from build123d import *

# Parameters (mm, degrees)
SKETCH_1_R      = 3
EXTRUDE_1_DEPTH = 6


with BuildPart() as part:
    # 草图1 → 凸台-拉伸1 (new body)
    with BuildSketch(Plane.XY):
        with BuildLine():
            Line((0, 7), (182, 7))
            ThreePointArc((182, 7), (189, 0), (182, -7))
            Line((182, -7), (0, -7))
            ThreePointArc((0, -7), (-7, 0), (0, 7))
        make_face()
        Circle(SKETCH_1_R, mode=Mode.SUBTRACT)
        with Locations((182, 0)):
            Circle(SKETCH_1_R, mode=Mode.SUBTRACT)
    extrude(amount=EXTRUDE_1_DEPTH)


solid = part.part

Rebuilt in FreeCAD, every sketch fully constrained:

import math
import FreeCAD as App
import Part
import Sketcher
Q = App.Units.Quantity

doc = App.newDocument("Part")
body = doc.addObject("PartDesign::Body", "Body")

# Sketch on XY plane
sketch1 = body.newObject("Sketcher::SketchObject", "Sketch")
sketch1.AttachmentSupport = (doc.getObject("XY_Plane"), [""])
sketch1.MapMode = "FlatFace"
sketch1.addGeometry([
    Part.LineSegment(App.Vector(182, 7, 0), App.Vector(0, 7, 0)),  # 0
    Part.ArcOfCircle(Part.Circle(App.Vector(0, 0, 0), App.Vector(0, 0, 1), 7), math.radians(90), math.radians(270)),  # 1
    Part.LineSegment(App.Vector(0, -7, 0), App.Vector(182, -7, 0)),  # 2
    Part.ArcOfCircle(Part.Circle(App.Vector(182, 0, 0), App.Vector(0, 0, 1), 7), math.radians(-90), math.radians(90)),  # 3
    Part.Circle(App.Vector(182, 0, 0), App.Vector(0, 0, 1), 3),  # 4
    Part.Circle(App.Vector(0, 0, 0), App.Vector(0, 0, 1), 3),  # 5
], False)
sketch1.addConstraint([
    Sketcher.Constraint("Tangent", 0, 2, 1, 1),
    Sketcher.Constraint("Tangent", 1, 2, 2, 1),
    Sketcher.Constraint("Tangent", 2, 2, 3, 1),
    Sketcher.Constraint("Tangent", 3, 2, 0, 1),
    Sketcher.Constraint("Horizontal", 0),
    Sketcher.Constraint("Horizontal", 2),
    Sketcher.Constraint("Coincident", 1, 3, -1, 1),
    Sketcher.Constraint("Coincident", 5, 3, -1, 1),
    Sketcher.Constraint("Coincident", 4, 3, 3, 3),
    Sketcher.Constraint("Equal", 4, 5),
    Sketcher.Constraint("Diameter", 4, Q("6 mm")),
    Sketcher.Constraint("Radius", 1, Q("7 mm")),
    Sketcher.Constraint("DistanceX", 0, 2, 0, 1, Q("182 mm")),
])
pad1 = body.newObject("PartDesign::Pad", "Pad")
pad1.Profile = sketch1
pad1.Length = 6

doc.recompute()
